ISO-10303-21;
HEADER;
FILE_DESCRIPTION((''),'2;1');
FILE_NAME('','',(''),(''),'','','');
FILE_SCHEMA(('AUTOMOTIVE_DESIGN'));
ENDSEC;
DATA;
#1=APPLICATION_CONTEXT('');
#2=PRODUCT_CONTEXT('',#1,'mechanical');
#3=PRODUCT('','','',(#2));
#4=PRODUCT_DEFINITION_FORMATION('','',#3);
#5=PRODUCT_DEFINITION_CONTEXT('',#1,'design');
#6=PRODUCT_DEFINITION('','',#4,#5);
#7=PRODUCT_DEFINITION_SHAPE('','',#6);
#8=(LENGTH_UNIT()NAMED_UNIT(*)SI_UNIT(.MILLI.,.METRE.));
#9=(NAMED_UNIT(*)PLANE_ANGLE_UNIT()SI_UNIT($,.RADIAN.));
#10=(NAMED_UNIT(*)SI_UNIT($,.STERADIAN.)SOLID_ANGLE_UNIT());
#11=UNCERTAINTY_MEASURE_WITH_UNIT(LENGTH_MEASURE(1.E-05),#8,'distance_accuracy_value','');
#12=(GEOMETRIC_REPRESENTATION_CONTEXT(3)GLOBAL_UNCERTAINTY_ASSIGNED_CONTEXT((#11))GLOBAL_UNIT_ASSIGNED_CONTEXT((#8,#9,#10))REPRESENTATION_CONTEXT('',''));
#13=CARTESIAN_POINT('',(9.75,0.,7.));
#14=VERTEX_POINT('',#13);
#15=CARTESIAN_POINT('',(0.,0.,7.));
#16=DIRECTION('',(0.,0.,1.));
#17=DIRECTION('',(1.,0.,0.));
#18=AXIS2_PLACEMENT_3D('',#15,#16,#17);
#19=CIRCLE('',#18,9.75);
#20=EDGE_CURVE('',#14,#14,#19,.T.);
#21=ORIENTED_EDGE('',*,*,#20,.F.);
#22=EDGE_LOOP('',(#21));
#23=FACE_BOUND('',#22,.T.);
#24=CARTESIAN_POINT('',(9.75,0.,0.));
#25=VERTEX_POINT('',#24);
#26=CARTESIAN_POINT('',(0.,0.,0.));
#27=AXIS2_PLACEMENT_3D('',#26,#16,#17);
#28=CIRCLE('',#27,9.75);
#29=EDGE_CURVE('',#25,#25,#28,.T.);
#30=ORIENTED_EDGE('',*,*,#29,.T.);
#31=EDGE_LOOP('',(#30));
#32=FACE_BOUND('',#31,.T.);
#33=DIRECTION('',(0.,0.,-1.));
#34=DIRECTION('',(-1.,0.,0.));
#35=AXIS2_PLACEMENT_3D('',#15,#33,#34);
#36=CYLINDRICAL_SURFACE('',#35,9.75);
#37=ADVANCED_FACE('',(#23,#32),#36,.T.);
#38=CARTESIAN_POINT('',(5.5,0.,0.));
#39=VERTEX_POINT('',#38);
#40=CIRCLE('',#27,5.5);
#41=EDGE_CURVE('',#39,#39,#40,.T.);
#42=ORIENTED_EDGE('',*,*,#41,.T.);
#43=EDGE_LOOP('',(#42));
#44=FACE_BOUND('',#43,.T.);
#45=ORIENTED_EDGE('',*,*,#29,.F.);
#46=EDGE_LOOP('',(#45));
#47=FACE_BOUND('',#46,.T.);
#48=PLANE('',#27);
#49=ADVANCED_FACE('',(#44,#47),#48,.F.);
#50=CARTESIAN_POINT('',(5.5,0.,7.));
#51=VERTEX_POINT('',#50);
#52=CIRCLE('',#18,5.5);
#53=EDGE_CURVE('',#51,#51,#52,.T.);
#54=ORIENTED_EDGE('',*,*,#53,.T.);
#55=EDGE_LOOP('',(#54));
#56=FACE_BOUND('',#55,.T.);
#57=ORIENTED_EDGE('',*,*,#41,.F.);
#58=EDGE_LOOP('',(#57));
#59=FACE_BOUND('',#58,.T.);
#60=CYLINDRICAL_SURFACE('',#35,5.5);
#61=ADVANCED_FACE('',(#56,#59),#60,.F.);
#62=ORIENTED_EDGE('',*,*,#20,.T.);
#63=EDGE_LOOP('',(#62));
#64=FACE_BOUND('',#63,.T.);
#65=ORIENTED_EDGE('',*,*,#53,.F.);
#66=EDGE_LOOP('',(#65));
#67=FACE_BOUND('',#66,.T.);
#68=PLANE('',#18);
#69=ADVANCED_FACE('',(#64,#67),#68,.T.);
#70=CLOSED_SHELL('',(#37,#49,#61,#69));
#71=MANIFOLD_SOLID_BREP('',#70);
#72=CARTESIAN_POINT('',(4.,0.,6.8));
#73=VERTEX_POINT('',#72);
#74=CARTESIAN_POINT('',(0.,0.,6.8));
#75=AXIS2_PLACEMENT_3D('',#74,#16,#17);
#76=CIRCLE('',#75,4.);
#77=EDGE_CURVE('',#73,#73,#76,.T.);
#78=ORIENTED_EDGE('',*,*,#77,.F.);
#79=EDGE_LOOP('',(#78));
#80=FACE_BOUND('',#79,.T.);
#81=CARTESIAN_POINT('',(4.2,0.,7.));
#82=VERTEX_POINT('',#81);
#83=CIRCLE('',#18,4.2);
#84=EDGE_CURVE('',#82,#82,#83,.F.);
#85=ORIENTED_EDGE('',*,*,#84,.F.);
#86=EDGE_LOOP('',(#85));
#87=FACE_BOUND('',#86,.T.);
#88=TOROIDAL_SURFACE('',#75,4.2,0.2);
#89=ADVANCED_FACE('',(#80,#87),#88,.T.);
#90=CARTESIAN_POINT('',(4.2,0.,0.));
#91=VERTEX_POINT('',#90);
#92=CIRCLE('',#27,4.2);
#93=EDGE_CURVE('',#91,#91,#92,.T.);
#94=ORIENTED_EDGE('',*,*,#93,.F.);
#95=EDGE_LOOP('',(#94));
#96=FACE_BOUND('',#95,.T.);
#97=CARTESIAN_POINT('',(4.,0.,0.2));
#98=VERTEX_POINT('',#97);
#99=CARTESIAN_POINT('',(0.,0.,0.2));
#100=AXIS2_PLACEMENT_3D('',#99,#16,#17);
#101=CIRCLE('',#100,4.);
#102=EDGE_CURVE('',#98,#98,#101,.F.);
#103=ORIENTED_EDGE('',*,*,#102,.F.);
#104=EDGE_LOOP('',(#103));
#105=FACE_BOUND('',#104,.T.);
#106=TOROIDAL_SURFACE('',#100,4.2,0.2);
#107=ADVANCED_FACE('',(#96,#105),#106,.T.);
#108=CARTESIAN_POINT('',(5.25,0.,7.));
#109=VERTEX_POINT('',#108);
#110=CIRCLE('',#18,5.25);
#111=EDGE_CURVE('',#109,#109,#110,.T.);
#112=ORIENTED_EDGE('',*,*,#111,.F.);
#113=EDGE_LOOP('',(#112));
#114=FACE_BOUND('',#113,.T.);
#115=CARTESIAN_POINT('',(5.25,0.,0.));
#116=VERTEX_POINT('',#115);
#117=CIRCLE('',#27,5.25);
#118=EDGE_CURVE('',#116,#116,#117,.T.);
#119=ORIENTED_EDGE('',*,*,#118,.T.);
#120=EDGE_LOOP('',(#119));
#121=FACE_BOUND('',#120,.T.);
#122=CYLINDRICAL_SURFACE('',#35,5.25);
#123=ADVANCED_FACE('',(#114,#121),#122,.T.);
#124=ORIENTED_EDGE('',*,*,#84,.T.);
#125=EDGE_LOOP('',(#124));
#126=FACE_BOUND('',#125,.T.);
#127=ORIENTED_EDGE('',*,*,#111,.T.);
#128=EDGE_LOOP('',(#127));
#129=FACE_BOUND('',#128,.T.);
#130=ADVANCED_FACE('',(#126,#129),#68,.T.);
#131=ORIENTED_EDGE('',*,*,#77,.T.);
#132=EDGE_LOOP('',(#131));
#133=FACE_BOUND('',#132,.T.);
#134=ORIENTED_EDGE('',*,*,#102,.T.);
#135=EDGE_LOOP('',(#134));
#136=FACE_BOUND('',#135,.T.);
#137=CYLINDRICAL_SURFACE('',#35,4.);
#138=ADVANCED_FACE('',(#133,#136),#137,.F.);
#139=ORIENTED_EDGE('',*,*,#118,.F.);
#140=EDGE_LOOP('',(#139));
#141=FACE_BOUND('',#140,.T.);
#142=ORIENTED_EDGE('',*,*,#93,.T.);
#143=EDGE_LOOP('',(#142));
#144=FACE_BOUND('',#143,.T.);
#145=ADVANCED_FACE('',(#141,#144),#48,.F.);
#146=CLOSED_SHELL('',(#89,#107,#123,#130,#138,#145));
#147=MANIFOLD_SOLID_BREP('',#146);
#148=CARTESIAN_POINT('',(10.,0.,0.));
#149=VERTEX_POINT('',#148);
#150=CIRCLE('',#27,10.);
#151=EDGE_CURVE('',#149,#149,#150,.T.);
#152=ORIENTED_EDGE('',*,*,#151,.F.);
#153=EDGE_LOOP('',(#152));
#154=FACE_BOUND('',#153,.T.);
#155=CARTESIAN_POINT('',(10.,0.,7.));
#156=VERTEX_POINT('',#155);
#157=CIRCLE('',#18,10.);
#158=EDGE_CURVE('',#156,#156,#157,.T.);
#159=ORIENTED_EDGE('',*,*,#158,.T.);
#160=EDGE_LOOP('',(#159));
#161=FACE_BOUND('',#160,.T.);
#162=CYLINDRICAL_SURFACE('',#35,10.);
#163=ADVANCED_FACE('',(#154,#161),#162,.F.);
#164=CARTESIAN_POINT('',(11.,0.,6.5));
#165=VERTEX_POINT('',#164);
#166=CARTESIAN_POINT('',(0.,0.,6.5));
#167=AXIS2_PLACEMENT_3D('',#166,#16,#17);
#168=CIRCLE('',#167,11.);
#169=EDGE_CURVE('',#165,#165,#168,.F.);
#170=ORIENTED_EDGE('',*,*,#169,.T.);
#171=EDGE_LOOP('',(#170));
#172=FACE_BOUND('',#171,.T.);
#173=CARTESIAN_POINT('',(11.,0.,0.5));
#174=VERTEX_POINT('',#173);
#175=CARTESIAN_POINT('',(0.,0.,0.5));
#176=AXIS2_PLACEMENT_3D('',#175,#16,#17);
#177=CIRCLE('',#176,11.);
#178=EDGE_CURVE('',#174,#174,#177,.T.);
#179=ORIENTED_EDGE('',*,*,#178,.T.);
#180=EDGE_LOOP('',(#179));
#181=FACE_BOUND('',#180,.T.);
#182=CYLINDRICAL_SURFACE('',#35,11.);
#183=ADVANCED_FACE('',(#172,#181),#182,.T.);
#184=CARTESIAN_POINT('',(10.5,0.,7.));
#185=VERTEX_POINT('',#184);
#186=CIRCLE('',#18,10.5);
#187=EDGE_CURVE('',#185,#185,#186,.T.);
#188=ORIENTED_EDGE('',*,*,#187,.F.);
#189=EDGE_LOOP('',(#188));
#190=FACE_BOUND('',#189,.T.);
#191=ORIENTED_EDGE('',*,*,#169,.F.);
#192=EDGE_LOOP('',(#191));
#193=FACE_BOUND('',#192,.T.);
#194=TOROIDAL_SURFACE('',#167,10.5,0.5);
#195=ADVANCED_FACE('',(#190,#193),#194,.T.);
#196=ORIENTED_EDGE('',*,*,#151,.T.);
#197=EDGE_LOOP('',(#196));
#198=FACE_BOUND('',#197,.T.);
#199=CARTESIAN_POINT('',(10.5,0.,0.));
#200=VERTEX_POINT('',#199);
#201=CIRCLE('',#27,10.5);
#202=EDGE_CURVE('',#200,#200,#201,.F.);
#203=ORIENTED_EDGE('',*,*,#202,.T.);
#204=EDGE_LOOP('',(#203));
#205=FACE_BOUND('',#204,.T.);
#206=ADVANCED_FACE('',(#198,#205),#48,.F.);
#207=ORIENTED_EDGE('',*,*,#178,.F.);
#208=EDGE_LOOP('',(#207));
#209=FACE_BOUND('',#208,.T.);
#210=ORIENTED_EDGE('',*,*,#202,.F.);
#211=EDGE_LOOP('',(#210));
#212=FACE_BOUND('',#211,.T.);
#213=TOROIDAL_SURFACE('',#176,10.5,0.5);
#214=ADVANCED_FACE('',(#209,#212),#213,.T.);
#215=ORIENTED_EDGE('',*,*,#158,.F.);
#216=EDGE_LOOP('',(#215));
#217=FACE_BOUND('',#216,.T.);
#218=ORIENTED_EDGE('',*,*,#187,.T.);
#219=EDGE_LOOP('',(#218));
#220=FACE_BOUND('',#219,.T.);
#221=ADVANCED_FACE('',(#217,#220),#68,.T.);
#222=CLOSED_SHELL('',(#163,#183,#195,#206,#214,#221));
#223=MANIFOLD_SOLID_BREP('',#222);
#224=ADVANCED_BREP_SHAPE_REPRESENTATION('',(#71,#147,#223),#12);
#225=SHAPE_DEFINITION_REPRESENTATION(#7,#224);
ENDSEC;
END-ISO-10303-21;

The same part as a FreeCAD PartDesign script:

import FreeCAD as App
import Part
import Sketcher
Q = App.Units.Quantity


def edges_at(feature, points):
    """Names of the edges that pass closest to the given points."""
    edges = feature.Shape.Edges
    near = lambda p: min(range(len(edges)), key=lambda i: edges[i].distToShape(Part.Vertex(*p))[0])
    return sorted({f"Edge{near(p) + 1}" for p in points})

doc = App.newDocument("Part")
body = doc.addObject("PartDesign::Body", "Body")

sketch1 = body.newObject("Sketcher::SketchObject", "Sketch")
sketch1.AttachmentSupport = (doc.getObject("XY_Plane"), [""])
sketch1.MapMode = "FlatFace"
sketch1.addGeometry([
    Part.Circle(App.Vector(0, 0, 0), App.Vector(0, 0, 1), 10),
    Part.Circle(App.Vector(0, 0, 0), App.Vector(0, 0, 1), 6),
], False)
sketch1.addConstraint([
    Sketcher.Constraint("Coincident", 0, 3, -1, 1),
    Sketcher.Constraint("Coincident", 1, 3, -1, 1),
    Sketcher.Constraint("Diameter", 1, Q("11 mm")),
    Sketcher.Constraint("Diameter", 0, Q("19.5 mm")),
])
pad1 = body.newObject("PartDesign::Pad", "Pad")
pad1.Profile = sketch1
pad1.Length = 7
body2 = doc.addObject("PartDesign::Body", "Body001")

sketch2 = body2.newObject("Sketcher::SketchObject", "Sketch001")
sketch2.AttachmentSupport = (doc.getObject("XY_Plane001"), [""])
sketch2.MapMode = "FlatFace"
sketch2.addGeometry([
    Part.Circle(App.Vector(0, 0, 0), App.Vector(0, 0, 1), 5.2),
    Part.Circle(App.Vector(0, 0, 0), App.Vector(0, 0, 1), 4),
], False)
sketch2.addConstraint([
    Sketcher.Constraint("Coincident", 0, 3, -1, 1),
    Sketcher.Constraint("Coincident", 1, 3, -1, 1),
    Sketcher.Constraint("Diameter", 1, Q("8 mm")),
    Sketcher.Constraint("Diameter", 0, Q("10.5 mm")),
])
pad2 = body2.newObject("PartDesign::Pad", "Pad001")
pad2.Profile = sketch2
pad2.Length = 7
doc.recompute()

fillet = body2.newObject("PartDesign::Fillet", "Fillet")
fillet.Base = (pad2, edges_at(pad2, [(-4, 0, 0), (-4, 0, 7)]))
fillet.Radius = 0.2
body3 = doc.addObject("PartDesign::Body", "Body002")

sketch3 = body3.newObject("Sketcher::SketchObject", "Sketch002")
sketch3.AttachmentSupport = (doc.getObject("XY_Plane002"), [""])
sketch3.MapMode = "FlatFace"
sketch3.addGeometry([
    Part.Circle(App.Vector(0, 0, 0), App.Vector(0, 0, 1), 11),
    Part.Circle(App.Vector(0, 0, 0), App.Vector(0, 0, 1), 10),
], False)
sketch3.addConstraint([
    Sketcher.Constraint("Coincident", 0, 3, -1, 1),
    Sketcher.Constraint("Coincident", 1, 3, -1, 1),
    Sketcher.Constraint("Diameter", 0, Q("22 mm")),
    Sketcher.Constraint("Diameter", 1, Q("20 mm")),
])
pad3 = body3.newObject("PartDesign::Pad", "Pad002")
pad3.Profile = sketch3
pad3.Length = 7
doc.recompute()

fillet2 = body3.newObject("PartDesign::Fillet", "Fillet001")
fillet2.Base = (pad3, edges_at(pad3, [(-11, 0, 7), (-11, 0, 0)]))
fillet2.Radius = 0.5

doc.recompute()
